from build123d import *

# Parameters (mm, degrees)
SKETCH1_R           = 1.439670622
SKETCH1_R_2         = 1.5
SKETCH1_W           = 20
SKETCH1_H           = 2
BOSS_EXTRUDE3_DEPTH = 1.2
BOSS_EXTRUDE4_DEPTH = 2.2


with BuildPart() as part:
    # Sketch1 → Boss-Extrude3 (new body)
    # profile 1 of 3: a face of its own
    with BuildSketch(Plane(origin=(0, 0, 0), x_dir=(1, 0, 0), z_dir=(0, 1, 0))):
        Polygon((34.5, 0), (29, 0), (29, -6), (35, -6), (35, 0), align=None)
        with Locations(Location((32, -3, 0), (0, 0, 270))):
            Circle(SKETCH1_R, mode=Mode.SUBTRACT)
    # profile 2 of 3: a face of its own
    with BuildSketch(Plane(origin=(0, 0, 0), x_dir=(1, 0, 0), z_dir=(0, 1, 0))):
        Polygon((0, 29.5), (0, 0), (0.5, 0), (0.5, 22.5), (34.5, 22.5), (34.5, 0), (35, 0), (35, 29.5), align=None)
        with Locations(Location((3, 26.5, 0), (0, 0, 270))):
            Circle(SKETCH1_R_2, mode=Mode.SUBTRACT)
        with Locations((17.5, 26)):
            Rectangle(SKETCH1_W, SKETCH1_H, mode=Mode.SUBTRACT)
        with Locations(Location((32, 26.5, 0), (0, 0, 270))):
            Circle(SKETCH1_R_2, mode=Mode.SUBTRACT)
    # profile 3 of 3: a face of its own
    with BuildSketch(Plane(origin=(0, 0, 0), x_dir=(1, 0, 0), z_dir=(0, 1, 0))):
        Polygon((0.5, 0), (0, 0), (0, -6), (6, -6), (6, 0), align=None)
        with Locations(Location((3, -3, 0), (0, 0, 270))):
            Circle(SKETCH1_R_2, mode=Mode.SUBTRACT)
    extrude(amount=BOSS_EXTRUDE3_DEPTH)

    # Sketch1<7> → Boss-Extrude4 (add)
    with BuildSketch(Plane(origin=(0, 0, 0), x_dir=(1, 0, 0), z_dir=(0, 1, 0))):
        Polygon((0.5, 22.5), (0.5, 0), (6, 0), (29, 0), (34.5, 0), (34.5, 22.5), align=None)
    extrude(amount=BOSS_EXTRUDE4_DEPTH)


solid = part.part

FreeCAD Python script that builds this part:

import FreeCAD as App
import Part
import Sketcher


def add_polygon(sketch, points):
    """Adds a closed chain of lines whose ends are joined by coincident constraints."""
    first, n = sketch.GeometryCount, len(points)
    for a, b in zip(points, points[1:] + points[:1]):
        sketch.addGeometry(Part.LineSegment(App.Vector(*a, 0), App.Vector(*b, 0)), False)
    for i in range(n):
        sketch.addConstraint(Sketcher.Constraint("Coincident", first + i, 2, first + (i + 1) % n, 1))

doc = App.newDocument("Part")
body = doc.addObject("PartDesign::Body", "Body")

sketch1 = body.newObject("Sketcher::SketchObject", "Sketch")
sketch1.AttachmentSupport = (doc.getObject("XZ_Plane"), [""])
sketch1.MapMode = "FlatFace"
add_polygon(sketch1, [(29, 0), (29, 6), (35, 6), (35, -29.5), (0, -29.5), (0, 6), (6, 6), (6, 0), (0.5, 0), (0.5, -22.5), (34.5, -22.5), (34.5, 0)])
sketch1.addGeometry(Part.Circle(App.Vector(32, 3, 0), App.Vector(0, 0, 1), 1.439671), False)
sketch1.addGeometry(Part.Circle(App.Vector(32, -26.5, 0), App.Vector(0, 0, 1), 1.5), False)
add_polygon(sketch1, [(27.5, -25), (7.5, -25), (7.5, -27), (27.5, -27)])
sketch1.addGeometry(Part.Circle(App.Vector(3, -26.5, 0), App.Vector(0, 0, 1), 1.5), False)
sketch1.addGeometry(Part.Circle(App.Vector(3, 3, 0), App.Vector(0, 0, 1), 1.5), False)
sketch1.addConstraint([
    Sketcher.Constraint("Vertical", 0),
    Sketcher.Constraint("Horizontal", 1),
    Sketcher.Constraint("Vertical", 2),
    Sketcher.Constraint("Horizontal", 3),
    Sketcher.Constraint("Vertical", 4),
    Sketcher.Constraint("Horizontal", 5),
    Sketcher.Constraint("Vertical", 6),
    Sketcher.Constraint("Horizontal", 7),
    Sketcher.Constraint("Vertical", 8),
    Sketcher.Constraint("Horizontal", 9),
    Sketcher.Constraint("Vertical", 10),
    Sketcher.Constraint("Horizontal", 11),
    Sketcher.Constraint("Horizontal", 14),
    Sketcher.Constraint("Vertical", 15),
    Sketcher.Constraint("Horizontal", 16),
    Sketcher.Constraint("Vertical", 17),
    Sketcher.Constraint("Equal", 13, 18),
    Sketcher.Constraint("Equal", 18, 19),
    Sketcher.Constraint("PointOnObject", 3, 2, -2),
    Sketcher.Constraint("PointOnObject", 6, 2, -1),
    Sketcher.Constraint("PointOnObject", 10, 2, -1),
    Sketcher.Constraint("Horizontal", 13, 3, 18, 3),
    Sketcher.Constraint("Horizontal", 12, 3, 19, 3),
    Sketcher.Constraint("Horizontal", 1, 2, 4, 2),
    Sketcher.Constraint("Vertical", 12, 3, 13, 3),
    Sketcher.Constraint("Vertical", 18, 3, 19, 3),
    Sketcher.Constraint("Equal", 1, 5),
    Sketcher.Constraint("Equal", 7, 11),
    Sketcher.Constraint("Equal", 5, 0),
    Sketcher.Constraint("Diameter", 13, 3.0),
    Sketcher.Constraint("DistanceX", 1, 1, 1, 2, 6.0),
    Sketcher.Constraint("DistanceX", 3, 2, 3, 1, 35.0),
    Sketcher.Constraint("DistanceX", 9, 1, 9, 2, 34.0),
    Sketcher.Constraint("DistanceX", 14, 2, 14, 1, 20.0),
    Sketcher.Constraint("DistanceY", 15, 2, 15, 1, 2.0),
    Sketcher.Constraint("DistanceY", 2, 2, 2, 1, 35.5),
    Sketcher.Constraint("DistanceY", 8, 2, 8, 1, 22.5),
    Sketcher.Constraint("DistanceX", -1, 1, 12, 3, 32.0),
    Sketcher.Constraint("DistanceY", -1, 1, 12, 3, 3.0),
    Sketcher.Constraint("DistanceX", -1, 1, 18, 3, 3.0),
    Sketcher.Constraint("DistanceY", 14, 2, -1, 1, 25.0),
    Sketcher.Constraint("DistanceY", 2, 2, 13, 3, 3.0),
    Sketcher.Constraint("DistanceX", 8, 2, 14, 2, 7.0),
    Sketcher.Constraint("Diameter", 12, 2.879341),
])
pad1 = body.newObject("PartDesign::Pad", "Pad")
pad1.Profile = sketch1
pad1.Length = 1.2
pad1.Reversed = True

sketch2 = body.newObject("Sketcher::SketchObject", "Sketch001")
sketch2.AttachmentSupport = (doc.getObject("XZ_Plane"), [""])
sketch2.MapMode = "FlatFace"
add_polygon(sketch2, [(0.5, -22.5), (0.5, 0), (34.5, 0), (34.5, -22.5)])
sketch2.addConstraint([
    Sketcher.Constraint("Vertical", 0),
    Sketcher.Constraint("Horizontal", 1),
    Sketcher.Constraint("Vertical", 2),
    Sketcher.Constraint("Horizontal", 3),
    Sketcher.Constraint("PointOnObject", 0, 2, -1),
    Sketcher.Constraint("DistanceX", 1, 1, 1, 2, 34.0),
    Sketcher.Constraint("DistanceY", 0, 1, 0, 2, 22.5),
    Sketcher.Constraint("DistanceX", -1, 1, 0, 2, 0.5),
])
pad2 = body.newObject("PartDesign::Pad", "Pad001")
pad2.Profile = sketch2
pad2.Length = 2.2
pad2.Reversed = True

doc.recompute()
